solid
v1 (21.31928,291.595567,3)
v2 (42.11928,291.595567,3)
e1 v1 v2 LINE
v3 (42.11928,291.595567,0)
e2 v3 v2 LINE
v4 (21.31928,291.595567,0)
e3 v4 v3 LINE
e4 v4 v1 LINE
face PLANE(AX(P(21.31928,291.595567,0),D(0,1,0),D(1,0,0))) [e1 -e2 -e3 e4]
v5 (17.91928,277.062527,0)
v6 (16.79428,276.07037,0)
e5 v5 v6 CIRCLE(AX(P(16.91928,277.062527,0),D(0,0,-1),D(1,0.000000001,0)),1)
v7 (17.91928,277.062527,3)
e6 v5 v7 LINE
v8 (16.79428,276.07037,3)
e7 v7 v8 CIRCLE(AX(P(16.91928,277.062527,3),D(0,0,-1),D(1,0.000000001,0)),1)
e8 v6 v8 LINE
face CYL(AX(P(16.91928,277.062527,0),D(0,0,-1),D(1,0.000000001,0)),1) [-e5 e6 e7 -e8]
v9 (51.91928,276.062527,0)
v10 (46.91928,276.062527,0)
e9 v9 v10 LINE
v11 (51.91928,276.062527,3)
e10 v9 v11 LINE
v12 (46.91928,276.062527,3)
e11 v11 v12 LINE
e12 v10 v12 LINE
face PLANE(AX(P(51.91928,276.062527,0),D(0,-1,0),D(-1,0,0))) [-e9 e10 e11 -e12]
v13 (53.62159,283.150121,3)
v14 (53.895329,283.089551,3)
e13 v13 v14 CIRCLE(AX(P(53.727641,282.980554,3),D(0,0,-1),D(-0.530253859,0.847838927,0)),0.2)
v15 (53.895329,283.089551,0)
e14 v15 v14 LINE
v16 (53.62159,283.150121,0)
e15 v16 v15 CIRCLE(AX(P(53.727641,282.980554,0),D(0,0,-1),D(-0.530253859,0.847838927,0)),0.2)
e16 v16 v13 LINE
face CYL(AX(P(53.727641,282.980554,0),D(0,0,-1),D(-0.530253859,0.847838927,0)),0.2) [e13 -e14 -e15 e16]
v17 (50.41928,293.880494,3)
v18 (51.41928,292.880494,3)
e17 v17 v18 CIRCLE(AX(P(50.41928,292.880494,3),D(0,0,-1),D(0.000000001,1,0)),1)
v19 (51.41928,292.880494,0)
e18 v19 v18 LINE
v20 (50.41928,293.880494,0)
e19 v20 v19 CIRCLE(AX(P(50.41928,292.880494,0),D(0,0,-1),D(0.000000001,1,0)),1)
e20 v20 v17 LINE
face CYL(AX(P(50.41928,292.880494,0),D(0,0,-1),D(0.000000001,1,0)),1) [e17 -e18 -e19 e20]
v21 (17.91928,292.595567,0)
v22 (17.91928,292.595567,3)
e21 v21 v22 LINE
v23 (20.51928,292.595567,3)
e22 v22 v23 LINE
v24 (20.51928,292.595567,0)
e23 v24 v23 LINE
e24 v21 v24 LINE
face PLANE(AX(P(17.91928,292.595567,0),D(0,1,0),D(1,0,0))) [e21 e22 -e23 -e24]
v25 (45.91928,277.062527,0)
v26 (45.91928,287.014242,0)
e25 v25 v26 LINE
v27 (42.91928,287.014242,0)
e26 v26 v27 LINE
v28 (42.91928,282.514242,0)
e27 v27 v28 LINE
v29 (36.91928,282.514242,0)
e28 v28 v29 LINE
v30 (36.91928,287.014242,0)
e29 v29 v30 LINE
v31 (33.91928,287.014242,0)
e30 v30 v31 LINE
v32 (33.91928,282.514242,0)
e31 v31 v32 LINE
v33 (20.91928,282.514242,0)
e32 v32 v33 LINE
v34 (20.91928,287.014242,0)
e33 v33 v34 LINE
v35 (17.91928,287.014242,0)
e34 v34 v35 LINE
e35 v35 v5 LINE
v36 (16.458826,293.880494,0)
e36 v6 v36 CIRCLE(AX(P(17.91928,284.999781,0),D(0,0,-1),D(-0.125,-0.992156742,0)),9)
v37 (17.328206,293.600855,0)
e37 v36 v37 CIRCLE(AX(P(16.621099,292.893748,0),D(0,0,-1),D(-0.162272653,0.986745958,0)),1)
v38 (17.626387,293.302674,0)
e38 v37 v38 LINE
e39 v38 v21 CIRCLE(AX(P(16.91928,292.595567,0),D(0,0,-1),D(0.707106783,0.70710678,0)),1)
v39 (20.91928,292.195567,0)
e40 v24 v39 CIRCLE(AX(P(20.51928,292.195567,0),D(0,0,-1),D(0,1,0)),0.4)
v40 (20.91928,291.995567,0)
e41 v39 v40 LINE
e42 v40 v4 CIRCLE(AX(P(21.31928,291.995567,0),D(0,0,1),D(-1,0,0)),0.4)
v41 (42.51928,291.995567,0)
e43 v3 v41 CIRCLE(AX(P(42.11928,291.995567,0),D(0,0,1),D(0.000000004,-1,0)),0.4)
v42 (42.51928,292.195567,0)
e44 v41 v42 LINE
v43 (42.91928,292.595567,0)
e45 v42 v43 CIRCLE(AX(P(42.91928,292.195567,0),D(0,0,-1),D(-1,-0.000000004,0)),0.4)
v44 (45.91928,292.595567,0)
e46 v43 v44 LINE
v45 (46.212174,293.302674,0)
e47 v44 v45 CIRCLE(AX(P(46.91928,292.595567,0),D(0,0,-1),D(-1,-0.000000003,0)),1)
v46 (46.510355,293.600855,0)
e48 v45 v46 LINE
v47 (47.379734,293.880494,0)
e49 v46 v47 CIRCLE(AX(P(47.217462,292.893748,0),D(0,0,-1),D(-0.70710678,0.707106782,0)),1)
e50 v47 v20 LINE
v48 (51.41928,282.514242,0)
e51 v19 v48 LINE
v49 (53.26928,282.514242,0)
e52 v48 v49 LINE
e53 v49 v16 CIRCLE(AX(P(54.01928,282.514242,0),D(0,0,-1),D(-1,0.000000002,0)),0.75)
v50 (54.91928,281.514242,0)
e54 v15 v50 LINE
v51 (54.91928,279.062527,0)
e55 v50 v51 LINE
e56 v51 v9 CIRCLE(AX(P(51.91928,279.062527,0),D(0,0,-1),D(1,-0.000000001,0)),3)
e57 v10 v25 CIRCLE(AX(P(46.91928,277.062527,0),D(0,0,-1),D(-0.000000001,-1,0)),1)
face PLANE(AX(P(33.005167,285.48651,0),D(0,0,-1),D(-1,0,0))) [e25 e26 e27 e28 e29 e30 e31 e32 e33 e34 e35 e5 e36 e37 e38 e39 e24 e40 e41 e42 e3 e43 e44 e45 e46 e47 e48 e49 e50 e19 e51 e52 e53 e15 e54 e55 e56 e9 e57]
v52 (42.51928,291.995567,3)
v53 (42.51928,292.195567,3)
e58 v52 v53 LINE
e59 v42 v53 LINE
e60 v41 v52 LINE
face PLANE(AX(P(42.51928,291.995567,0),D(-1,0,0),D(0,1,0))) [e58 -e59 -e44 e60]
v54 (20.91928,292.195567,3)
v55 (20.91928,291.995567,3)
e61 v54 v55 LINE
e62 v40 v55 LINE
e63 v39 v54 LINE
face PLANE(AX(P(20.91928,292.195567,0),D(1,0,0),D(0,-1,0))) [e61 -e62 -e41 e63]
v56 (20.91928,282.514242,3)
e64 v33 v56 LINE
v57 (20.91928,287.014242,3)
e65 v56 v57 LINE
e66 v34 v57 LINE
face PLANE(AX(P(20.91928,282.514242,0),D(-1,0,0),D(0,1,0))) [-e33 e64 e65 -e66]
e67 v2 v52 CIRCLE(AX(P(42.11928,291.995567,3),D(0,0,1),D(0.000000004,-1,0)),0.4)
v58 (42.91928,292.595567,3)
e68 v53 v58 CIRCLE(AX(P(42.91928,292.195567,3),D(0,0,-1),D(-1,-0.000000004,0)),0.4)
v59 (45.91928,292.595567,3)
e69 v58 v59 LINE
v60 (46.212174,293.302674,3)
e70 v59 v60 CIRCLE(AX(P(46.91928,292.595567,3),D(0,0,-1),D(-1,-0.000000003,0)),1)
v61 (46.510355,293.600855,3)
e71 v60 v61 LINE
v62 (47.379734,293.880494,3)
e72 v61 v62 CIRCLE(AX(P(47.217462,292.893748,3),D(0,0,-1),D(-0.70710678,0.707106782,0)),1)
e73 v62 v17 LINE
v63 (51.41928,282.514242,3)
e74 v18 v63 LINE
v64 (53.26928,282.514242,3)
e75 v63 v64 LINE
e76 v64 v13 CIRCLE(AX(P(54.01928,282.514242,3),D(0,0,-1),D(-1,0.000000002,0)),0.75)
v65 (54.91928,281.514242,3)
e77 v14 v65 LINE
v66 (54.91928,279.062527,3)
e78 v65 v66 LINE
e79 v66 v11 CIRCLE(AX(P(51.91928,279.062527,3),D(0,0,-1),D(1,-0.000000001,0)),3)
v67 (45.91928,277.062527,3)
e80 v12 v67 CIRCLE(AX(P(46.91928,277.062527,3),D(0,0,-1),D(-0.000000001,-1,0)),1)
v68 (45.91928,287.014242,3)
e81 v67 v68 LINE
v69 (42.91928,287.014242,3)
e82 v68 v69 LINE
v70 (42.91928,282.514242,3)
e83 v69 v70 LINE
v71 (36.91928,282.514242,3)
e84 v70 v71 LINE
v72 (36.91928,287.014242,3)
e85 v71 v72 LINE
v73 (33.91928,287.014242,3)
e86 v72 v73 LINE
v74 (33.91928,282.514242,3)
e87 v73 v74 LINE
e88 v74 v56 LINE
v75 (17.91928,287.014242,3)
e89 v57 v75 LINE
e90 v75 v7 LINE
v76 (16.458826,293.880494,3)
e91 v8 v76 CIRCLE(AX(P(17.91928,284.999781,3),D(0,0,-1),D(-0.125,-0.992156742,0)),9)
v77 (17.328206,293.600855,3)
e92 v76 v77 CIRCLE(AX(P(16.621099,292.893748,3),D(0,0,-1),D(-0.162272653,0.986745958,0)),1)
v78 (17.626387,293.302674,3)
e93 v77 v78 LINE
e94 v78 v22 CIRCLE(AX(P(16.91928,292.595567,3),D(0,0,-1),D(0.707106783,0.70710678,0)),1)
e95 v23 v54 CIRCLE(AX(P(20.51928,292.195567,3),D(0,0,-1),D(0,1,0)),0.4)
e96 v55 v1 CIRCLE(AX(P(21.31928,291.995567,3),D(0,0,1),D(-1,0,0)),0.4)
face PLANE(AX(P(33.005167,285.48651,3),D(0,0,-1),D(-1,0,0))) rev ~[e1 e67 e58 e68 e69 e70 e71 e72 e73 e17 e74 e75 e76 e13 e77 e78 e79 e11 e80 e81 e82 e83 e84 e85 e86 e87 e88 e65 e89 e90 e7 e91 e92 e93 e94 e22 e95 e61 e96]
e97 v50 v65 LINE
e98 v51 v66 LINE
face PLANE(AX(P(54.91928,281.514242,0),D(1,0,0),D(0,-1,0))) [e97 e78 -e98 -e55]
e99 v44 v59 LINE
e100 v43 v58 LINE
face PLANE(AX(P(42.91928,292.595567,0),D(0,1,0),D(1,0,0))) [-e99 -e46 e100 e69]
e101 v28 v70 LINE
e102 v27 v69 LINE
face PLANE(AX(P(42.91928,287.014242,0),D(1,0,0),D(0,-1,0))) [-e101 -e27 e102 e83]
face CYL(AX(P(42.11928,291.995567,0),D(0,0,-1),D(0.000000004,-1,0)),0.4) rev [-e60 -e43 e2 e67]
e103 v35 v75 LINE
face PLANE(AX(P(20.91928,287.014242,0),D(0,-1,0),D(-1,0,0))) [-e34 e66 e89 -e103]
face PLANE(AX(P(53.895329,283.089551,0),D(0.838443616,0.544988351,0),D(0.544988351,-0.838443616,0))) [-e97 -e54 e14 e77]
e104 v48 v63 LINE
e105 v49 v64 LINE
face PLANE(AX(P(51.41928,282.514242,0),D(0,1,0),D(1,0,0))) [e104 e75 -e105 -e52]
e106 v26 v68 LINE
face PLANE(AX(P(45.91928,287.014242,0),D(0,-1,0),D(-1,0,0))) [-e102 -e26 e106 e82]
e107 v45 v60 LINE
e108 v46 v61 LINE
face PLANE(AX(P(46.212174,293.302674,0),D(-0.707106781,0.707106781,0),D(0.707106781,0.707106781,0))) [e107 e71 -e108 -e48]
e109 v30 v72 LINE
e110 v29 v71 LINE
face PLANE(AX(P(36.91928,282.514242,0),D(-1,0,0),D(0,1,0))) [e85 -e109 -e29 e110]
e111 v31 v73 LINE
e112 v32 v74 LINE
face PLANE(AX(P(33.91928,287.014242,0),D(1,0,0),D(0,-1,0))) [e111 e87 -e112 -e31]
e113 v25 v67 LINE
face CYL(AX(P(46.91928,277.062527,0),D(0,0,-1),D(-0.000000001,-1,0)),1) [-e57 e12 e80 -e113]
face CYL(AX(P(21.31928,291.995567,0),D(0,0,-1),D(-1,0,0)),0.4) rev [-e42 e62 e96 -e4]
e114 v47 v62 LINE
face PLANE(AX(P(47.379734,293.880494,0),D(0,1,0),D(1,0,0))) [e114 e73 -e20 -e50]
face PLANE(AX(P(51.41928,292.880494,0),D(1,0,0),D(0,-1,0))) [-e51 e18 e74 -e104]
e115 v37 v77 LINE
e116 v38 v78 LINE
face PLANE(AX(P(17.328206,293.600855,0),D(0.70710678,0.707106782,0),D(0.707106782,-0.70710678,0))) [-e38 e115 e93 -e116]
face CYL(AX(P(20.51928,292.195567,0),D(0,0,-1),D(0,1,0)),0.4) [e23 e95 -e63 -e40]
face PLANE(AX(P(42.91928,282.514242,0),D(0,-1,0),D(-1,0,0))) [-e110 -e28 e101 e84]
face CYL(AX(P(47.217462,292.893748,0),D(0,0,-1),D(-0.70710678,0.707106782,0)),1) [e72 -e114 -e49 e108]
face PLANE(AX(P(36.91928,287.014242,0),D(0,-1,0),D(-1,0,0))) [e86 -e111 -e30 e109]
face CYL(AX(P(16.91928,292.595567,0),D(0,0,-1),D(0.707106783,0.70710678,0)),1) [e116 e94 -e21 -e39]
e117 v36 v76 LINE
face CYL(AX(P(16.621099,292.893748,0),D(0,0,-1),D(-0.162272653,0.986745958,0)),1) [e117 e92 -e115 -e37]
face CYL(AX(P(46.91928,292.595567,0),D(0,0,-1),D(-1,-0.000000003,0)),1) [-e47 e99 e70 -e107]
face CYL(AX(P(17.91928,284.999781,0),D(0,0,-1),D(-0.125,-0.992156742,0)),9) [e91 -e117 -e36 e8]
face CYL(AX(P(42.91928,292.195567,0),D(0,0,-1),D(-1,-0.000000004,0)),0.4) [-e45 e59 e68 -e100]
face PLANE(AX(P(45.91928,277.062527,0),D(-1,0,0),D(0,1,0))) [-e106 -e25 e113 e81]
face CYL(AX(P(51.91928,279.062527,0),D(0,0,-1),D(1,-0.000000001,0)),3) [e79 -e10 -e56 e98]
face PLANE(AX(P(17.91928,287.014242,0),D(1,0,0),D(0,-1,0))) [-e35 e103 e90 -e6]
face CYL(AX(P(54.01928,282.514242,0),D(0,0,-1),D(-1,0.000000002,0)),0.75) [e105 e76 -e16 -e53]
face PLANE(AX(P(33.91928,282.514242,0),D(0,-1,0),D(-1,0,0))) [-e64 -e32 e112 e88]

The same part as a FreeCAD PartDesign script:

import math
import FreeCAD as App
import Part
import Sketcher
from FreeCAD import Vector
Q = App.Units.Quantity

doc = App.newDocument("Part")
body = doc.addObject("PartDesign::Body", "Body")

# Sketch on XY plane
sketch1 = body.newObject("Sketcher::SketchObject", "Sketch")
sketch1.AttachmentSupport = (doc.getObject("XY_Plane"), [""])
sketch1.MapMode = "FlatFace"
sketch1.addGeometry([
    Part.LineSegment(Vector(50.41928, 293.880494, 0), Vector(47.379734, 293.880494, 0)),  # 0
    Part.ArcOfCircle(Part.Circle(Vector(47.217462, 292.893748, 0), Vector(0, 0, 1), 1), math.radians(80.661166), math.radians(135)),  # 1
    Part.LineSegment(Vector(46.510355, 293.600855, 0), Vector(46.212174, 293.302674, 0)),  # 2
    Part.ArcOfCircle(Part.Circle(Vector(46.91928, 292.595567, 0), Vector(0, 0, 1), 1), math.radians(135), math.radians(180)),  # 3
    Part.LineSegment(Vector(45.91928, 292.595567, 0), Vector(42.91928, 292.595567, 0)),  # 4
    Part.ArcOfCircle(Part.Circle(Vector(42.91928, 292.195567, 0), Vector(0, 0, 1), 0.4), math.radians(90), math.radians(180)),  # 5
    Part.LineSegment(Vector(42.51928, 292.195567, 0), Vector(42.51928, 291.995567, 0)),  # 6
    Part.ArcOfCircle(Part.Circle(Vector(42.11928, 291.995567, 0), Vector(0, 0, 1), 0.4), math.radians(-90), math.radians(0)),  # 7
    Part.LineSegment(Vector(42.11928, 291.595567, 0), Vector(21.31928, 291.595567, 0)),  # 8
    Part.ArcOfCircle(Part.Circle(Vector(21.31928, 291.995567, 0), Vector(0, 0, 1), 0.4), math.radians(180), math.radians(270)),  # 9
    Part.LineSegment(Vector(20.91928, 291.995567, 0), Vector(20.91928, 292.195567, 0)),  # 10
    Part.ArcOfCircle(Part.Circle(Vector(20.51928, 292.195567, 0), Vector(0, 0, 1), 0.4), math.radians(0), math.radians(90)),  # 11
    Part.LineSegment(Vector(20.51928, 292.595567, 0), Vector(17.91928, 292.595567, 0)),  # 12
    Part.ArcOfCircle(Part.Circle(Vector(16.91928, 292.595567, 0), Vector(0, 0, 1), 1), math.radians(0), math.radians(45)),  # 13
    Part.LineSegment(Vector(17.626387, 293.302674, 0), Vector(17.328206, 293.600855, 0)),  # 14
    Part.ArcOfCircle(Part.Circle(Vector(16.621099, 292.893748, 0), Vector(0, 0, 1), 1), math.radians(45), math.radians(99.338834)),  # 15
    Part.ArcOfCircle(Part.Circle(Vector(17.91928, 284.999781, 0), Vector(0, 0, 1), 9), math.radians(99.338834), math.radians(262.819244)),  # 16
    Part.ArcOfCircle(Part.Circle(Vector(16.91928, 277.062527, 0), Vector(0, 0, 1), 1), math.radians(-97.180756), math.radians(0)),  # 17
    Part.LineSegment(Vector(17.91928, 277.062527, 0), Vector(17.91928, 287.014242, 0)),  # 18
    Part.LineSegment(Vector(17.91928, 287.014242, 0), Vector(20.91928, 287.014242, 0)),  # 19
    Part.LineSegment(Vector(20.91928, 287.014242, 0), Vector(20.91928, 282.514242, 0)),  # 20
    Part.LineSegment(Vector(20.91928, 282.514242, 0), Vector(33.91928, 282.514242, 0)),  # 21
    Part.LineSegment(Vector(33.91928, 282.514242, 0), Vector(33.91928, 287.014242, 0)),  # 22
    Part.LineSegment(Vector(33.91928, 287.014242, 0), Vector(36.91928, 287.014242, 0)),  # 23
    Part.LineSegment(Vector(36.91928, 287.014242, 0), Vector(36.91928, 282.514242, 0)),  # 24
    Part.LineSegment(Vector(36.91928, 282.514242, 0), Vector(42.91928, 282.514242, 0)),  # 25
    Part.LineSegment(Vector(42.91928, 282.514242, 0), Vector(42.91928, 287.014242, 0)),  # 26
    Part.LineSegment(Vector(42.91928, 287.014242, 0), Vector(45.91928, 287.014242, 0)),  # 27
    Part.LineSegment(Vector(45.91928, 287.014242, 0), Vector(45.91928, 277.062527, 0)),  # 28
    Part.ArcOfCircle(Part.Circle(Vector(46.91928, 277.062527, 0), Vector(0, 0, 1), 1), math.radians(-180), math.radians(-90)),  # 29
    Part.LineSegment(Vector(46.91928, 276.062527, 0), Vector(51.91928, 276.062527, 0)),  # 30
    Part.ArcOfCircle(Part.Circle(Vector(51.91928, 279.062527, 0), Vector(0, 0, 1), 3), math.radians(-90), math.radians(0)),  # 31
    Part.LineSegment(Vector(54.91928, 279.062527, 0), Vector(54.91928, 281.514242, 0)),  # 32
    Part.LineSegment(Vector(54.91928, 281.514242, 0), Vector(53.895329, 283.089551, 0)),  # 33
    Part.ArcOfCircle(Part.Circle(Vector(53.727641, 282.980554, 0), Vector(0, 0, 1), 0.2), math.radians(33.023868), math.radians(122.022609)),  # 34
    Part.ArcOfCircle(Part.Circle(Vector(54.01928, 282.514242, 0), Vector(0, 0, 1), 0.75), math.radians(122.022609), math.radians(180)),  # 35
    Part.LineSegment(Vector(53.26928, 282.514242, 0), Vector(51.41928, 282.514242, 0)),  # 36
    Part.LineSegment(Vector(51.41928, 282.514242, 0), Vector(51.41928, 292.880494, 0)),  # 37
    Part.ArcOfCircle(Part.Circle(Vector(50.41928, 292.880494, 0), Vector(0, 0, 1), 1), math.radians(0), math.radians(90)),  # 38
], False)
sketch1.addConstraint([
    Sketcher.Constraint("Coincident", 0, 2, 1, 1),
    Sketcher.Constraint("Tangent", 1, 2, 2, 1),
    Sketcher.Constraint("Tangent", 2, 2, 3, 1),
    Sketcher.Constraint("Coincident", 3, 2, 4, 1),
    Sketcher.Constraint("Tangent", 4, 2, 5, 1),
    Sketcher.Constraint("Tangent", 5, 2, 6, 1),
    Sketcher.Constraint("Tangent", 6, 2, 7, 2),
    Sketcher.Constraint("Tangent", 7, 1, 8, 1),
    Sketcher.Constraint("Tangent", 8, 2, 9, 2),
    Sketcher.Constraint("Tangent", 9, 1, 10, 1),
    Sketcher.Constraint("Tangent", 10, 2, 11, 1),
    Sketcher.Constraint("Tangent", 11, 2, 12, 1),
    Sketcher.Constraint("Coincident", 12, 2, 13, 1),
    Sketcher.Constraint("Tangent", 13, 2, 14, 1),
    Sketcher.Constraint("Tangent", 14, 2, 15, 1),
    Sketcher.Constraint("Tangent", 15, 2, 16, 1),
    Sketcher.Constraint("Tangent", 16, 2, 17, 1),
    Sketcher.Constraint("Tangent", 17, 2, 18, 1),
    Sketcher.Constraint("Coincident", 18, 2, 19, 1),
    Sketcher.Constraint("Coincident", 19, 2, 20, 1),
    Sketcher.Constraint("Coincident", 20, 2, 21, 1),
    Sketcher.Constraint("Coincident", 21, 2, 22, 1),
    Sketcher.Constraint("Coincident", 22, 2, 23, 1),
    Sketcher.Constraint("Coincident", 23, 2, 24, 1),
    Sketcher.Constraint("Coincident", 24, 2, 25, 1),
    Sketcher.Constraint("Coincident", 25, 2, 26, 1),
    Sketcher.Constraint("Coincident", 26, 2, 27, 1),
    Sketcher.Constraint("Coincident", 27, 2, 28, 1),
    Sketcher.Constraint("Tangent", 28, 2, 29, 1),
    Sketcher.Constraint("Tangent", 29, 2, 30, 1),
    Sketcher.Constraint("Tangent", 30, 2, 31, 1),
    Sketcher.Constraint("Tangent", 31, 2, 32, 1),
    Sketcher.Constraint("Coincident", 32, 2, 33, 1),
    Sketcher.Constraint("Tangent", 33, 2, 34, 1),
    Sketcher.Constraint("Tangent", 34, 2, 35, 1),
    Sketcher.Constraint("Coincident", 35, 2, 36, 1),
    Sketcher.Constraint("Coincident", 36, 2, 37, 1),
    Sketcher.Constraint("Tangent", 37, 2, 38, 1),
    Sketcher.Constraint("Tangent", 38, 2, 0, 1),
    Sketcher.Constraint("Horizontal", 0),
    Sketcher.Constraint("Horizontal", 4),
    Sketcher.Constraint("Vertical", 6),
    Sketcher.Constraint("Horizontal", 8),
    Sketcher.Constraint("Vertical", 10),
    Sketcher.Constraint("Horizontal", 12),
    Sketcher.Constraint("Vertical", 18),
    Sketcher.Constraint("Horizontal", 19),
    Sketcher.Constraint("Vertical", 20),
    Sketcher.Constraint("Horizontal", 21),
    Sketcher.Constraint("Vertical", 22),
    Sketcher.Constraint("Horizontal", 23),
    Sketcher.Constraint("Vertical", 24),
    Sketcher.Constraint("Horizontal", 25),
    Sketcher.Constraint("Vertical", 26),
    Sketcher.Constraint("Horizontal", 27),
    Sketcher.Constraint("Vertical", 28),
    Sketcher.Constraint("Horizontal", 30),
    Sketcher.Constraint("Vertical", 32),
    Sketcher.Constraint("Horizontal", 36),
    Sketcher.Constraint("Vertical", 37),
    Sketcher.Constraint("Equal", 1, 3),
    Sketcher.Constraint("Equal", 5, 7),
    Sketcher.Constraint("Equal", 7, 9),
    Sketcher.Constraint("Equal", 9, 11),
    Sketcher.Constraint("Equal", 3, 13),
    Sketcher.Constraint("Equal", 13, 15),
    Sketcher.Constraint("Equal", 15, 17),
    Sketcher.Constraint("Equal", 17, 29),
    Sketcher.Constraint("Equal", 29, 38),
    Sketcher.Constraint("Perpendicular", 2, 14),
    Sketcher.Constraint("Horizontal", 5, 3, 11, 3),
    Sketcher.Constraint("Horizontal", 3, 3, 13, 3),
    Sketcher.Constraint("Horizontal", 1, 3, 15, 3),
    Sketcher.Constraint("Horizontal", 17, 3, 29, 3),
    Sketcher.Constraint("Horizontal", 13, 3, 3, 2),
    Sketcher.Constraint("Horizontal", 2, 2, 13, 2),
    Sketcher.Constraint("Horizontal", 0, 2, 15, 2),
    Sketcher.Constraint("Horizontal", 35, 3, 20, 2),
    Sketcher.Constraint("Horizontal", 19, 2, 22, 2),
    Sketcher.Constraint("Horizontal", 21, 2, 24, 2),
    Sketcher.Constraint("Horizontal", 23, 2, 26, 2),
    Sketcher.Constraint("Horizontal", 25, 2, 35, 2),
    Sketcher.Constraint("Vertical", 13, 3, 17, 3),
    Sketcher.Constraint("Vertical", 3, 3, 29, 3),
    Sketcher.Constraint("Vertical", 16, 3, 12, 2),
    Sketcher.Constraint("Vertical", 10, 2, 19, 2),
    Sketcher.Constraint("Vertical", 4, 2, 25, 2),
    Sketcher.Constraint("Equal", 4, 19),
    Sketcher.Constraint("Equal", 19, 23),
    Sketcher.Constraint("Radius", 1, Q("1 mm")),
    Sketcher.Constraint("Radius", 16, Q("9 mm")),
    Sketcher.Constraint("Radius", 31, Q("3 mm")),
    Sketcher.Constraint("Radius", 5, Q("0.4 mm")),
    Sketcher.Constraint("Radius", 34, Q("0.2 mm")),
    Sketcher.Constraint("DistanceX", 4, 2, 4, 1, Q("3 mm")),
    Sketcher.Constraint("DistanceX", 21, 1, 21, 2, Q("13 mm")),
    Sketcher.Constraint("DistanceX", 25, 1, 25, 2, Q("6 mm")),
    Sketcher.Constraint("DistanceX", 30, 1, 30, 2, Q("5 mm")),
    Sketcher.Constraint("Radius", 35, Q("0.75 mm")),
    Sketcher.Constraint("DistanceY", 6, 2, 6, 1, Q("0.2 mm")),
    Sketcher.Constraint("DistanceY", 20, 2, 20, 1, Q("4.5 mm")),
    Sketcher.Constraint("DistanceY", 32, 2, 35, 3, Q("1 mm")),
    Sketcher.Constraint("DistanceX", 36, 2, 36, 1, Q("1.85 mm")),
    Sketcher.Constraint("DistanceX", 31, 3, 35, 3, Q("2.1 mm")),
    Sketcher.Constraint("DistanceX", -1, 1, 15, 3, Q("16.621099 mm")),
    Sketcher.Constraint("Distance", 2, Q("0.421692 mm")),
    Sketcher.Constraint("Distance", 33, Q("1.878849 mm")),
    Sketcher.Constraint("DistanceY", 18, 1, 18, 2, Q("9.951715 mm")),
    Sketcher.Constraint("DistanceY", -1, 1, 1, 3, Q("292.893748 mm")),
])
pad1 = body.newObject("PartDesign::Pad", "Pad")
pad1.Profile = sketch1
pad1.Length = 3

doc.recompute()
